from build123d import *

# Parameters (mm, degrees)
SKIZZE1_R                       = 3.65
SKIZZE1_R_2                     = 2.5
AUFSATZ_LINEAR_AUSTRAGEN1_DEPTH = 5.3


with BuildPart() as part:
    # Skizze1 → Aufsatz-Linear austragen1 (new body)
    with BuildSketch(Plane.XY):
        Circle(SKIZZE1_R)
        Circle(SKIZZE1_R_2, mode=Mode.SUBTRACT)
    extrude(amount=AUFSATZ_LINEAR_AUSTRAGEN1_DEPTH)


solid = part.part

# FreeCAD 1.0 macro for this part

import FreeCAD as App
import Part
import Sketcher

doc = App.newDocument("Part")
body = doc.addObject("PartDesign::Body", "Body")

# Sketch on XY plane
sketch1 = body.newObject("Sketcher::SketchObject", "Sketch")
sketch1.AttachmentSupport = (doc.getObject("XY_Plane"), [""])
sketch1.MapMode = "FlatFace"
sketch1.addGeometry([
    Part.Circle(App.Vector(0, 0, 0), App.Vector(0, 0, 1), 3.65),
    Part.Circle(App.Vector(0, 0, 0), App.Vector(0, 0, 1), 2.5),
], False)
sketch1.addConstraint([
    Sketcher.Constraint("Coincident", 0, 3, -1, 1),
    Sketcher.Constraint("Coincident", 1, 3, -1, 1),
    Sketcher.Constraint("Diameter", 1, 5.0),
    Sketcher.Constraint("Diameter", 0, 7.3),
])
pad1 = body.newObject("PartDesign::Pad", "Pad")
pad1.Profile = sketch1
pad1.Length = 5.3

doc.recompute()
